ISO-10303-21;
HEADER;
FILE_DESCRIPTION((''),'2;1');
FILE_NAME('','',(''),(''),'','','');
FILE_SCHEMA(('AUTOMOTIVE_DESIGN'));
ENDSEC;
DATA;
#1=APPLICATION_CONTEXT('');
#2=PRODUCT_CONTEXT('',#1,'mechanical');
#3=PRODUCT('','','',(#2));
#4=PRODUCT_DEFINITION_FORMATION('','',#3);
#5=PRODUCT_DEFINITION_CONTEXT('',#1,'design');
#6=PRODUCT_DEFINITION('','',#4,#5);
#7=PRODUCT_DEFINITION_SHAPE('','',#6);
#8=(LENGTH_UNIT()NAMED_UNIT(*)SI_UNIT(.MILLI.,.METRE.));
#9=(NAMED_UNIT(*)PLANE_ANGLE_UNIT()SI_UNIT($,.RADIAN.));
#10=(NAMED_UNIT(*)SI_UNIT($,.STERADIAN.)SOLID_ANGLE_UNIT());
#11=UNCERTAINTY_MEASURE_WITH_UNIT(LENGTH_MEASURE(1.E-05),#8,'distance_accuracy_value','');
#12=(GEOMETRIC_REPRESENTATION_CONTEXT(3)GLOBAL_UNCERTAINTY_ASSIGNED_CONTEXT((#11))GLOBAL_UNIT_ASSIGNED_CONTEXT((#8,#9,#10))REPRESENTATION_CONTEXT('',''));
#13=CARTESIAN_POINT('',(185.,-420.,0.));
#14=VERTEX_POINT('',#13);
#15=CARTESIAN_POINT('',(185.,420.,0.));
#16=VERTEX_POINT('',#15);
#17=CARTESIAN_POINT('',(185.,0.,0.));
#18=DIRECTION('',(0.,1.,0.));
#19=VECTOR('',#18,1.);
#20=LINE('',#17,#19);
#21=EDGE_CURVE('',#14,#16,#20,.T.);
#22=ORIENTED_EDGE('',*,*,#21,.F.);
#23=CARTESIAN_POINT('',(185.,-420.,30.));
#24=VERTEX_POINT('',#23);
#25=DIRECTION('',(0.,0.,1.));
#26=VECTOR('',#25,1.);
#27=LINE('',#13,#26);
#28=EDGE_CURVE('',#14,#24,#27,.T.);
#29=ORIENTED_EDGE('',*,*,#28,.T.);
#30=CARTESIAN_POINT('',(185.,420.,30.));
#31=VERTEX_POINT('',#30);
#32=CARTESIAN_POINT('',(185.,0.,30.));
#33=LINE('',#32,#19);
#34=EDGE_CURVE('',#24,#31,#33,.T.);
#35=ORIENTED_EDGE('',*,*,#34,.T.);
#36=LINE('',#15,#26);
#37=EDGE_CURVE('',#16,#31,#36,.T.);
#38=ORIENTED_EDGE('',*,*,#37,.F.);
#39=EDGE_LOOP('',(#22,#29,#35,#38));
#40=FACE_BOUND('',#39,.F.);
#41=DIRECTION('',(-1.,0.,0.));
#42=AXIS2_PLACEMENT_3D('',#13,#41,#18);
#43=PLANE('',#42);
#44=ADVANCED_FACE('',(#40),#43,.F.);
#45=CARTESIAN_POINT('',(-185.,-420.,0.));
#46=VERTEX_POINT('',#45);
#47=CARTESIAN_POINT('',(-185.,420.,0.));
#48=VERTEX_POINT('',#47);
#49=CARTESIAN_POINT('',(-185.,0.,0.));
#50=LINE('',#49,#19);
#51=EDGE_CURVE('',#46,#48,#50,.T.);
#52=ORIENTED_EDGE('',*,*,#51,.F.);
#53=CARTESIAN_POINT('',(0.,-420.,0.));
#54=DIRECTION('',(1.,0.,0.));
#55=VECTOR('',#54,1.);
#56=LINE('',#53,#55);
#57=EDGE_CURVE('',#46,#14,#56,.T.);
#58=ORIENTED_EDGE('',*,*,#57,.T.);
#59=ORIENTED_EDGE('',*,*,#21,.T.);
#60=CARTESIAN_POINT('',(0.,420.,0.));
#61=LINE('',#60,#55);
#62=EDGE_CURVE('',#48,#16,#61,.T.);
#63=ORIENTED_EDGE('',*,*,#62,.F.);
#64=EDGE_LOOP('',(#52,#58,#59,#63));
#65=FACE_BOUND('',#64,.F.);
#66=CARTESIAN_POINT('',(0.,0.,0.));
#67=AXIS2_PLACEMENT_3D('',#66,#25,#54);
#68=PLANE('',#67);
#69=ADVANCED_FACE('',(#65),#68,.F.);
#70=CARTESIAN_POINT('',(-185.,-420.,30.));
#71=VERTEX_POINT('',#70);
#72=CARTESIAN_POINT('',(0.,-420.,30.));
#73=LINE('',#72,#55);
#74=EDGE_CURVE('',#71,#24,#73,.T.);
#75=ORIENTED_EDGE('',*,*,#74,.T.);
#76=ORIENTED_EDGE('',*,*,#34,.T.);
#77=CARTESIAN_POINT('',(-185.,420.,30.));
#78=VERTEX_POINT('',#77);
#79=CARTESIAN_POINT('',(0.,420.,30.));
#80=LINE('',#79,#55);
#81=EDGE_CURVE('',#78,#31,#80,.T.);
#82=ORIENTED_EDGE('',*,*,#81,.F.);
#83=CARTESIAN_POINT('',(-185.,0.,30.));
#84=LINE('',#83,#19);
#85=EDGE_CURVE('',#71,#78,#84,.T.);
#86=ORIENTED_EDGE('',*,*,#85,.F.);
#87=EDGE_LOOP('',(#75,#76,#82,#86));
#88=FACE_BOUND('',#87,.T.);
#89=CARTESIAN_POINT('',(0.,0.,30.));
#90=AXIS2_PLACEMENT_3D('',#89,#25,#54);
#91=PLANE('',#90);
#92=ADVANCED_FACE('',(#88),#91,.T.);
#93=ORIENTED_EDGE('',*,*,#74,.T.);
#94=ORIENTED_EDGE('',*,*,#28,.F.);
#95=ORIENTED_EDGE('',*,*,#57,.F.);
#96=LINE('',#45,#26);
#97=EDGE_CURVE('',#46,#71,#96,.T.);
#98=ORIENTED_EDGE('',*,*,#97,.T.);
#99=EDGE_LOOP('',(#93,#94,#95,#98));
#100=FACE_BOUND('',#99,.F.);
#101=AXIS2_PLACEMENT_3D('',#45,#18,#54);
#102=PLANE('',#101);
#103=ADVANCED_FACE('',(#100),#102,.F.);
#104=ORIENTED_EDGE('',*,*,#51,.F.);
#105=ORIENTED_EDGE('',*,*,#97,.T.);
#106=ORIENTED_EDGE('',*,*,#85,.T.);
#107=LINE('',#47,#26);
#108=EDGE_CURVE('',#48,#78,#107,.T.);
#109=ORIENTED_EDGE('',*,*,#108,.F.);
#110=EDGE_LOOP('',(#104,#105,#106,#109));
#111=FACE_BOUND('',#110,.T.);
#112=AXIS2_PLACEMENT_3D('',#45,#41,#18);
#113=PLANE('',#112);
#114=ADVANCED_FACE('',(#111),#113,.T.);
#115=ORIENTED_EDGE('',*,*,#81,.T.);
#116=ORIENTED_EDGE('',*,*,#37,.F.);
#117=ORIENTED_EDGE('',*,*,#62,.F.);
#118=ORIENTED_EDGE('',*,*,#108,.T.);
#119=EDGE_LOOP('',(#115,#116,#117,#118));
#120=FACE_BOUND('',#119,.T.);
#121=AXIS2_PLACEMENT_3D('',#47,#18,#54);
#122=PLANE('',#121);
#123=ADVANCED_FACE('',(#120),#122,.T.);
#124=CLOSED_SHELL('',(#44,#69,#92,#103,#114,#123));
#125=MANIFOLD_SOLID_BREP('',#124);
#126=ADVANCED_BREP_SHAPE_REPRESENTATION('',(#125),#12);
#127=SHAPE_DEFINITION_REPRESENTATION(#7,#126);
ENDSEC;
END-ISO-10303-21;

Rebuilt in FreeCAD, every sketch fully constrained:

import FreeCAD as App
import Part
import Sketcher
from FreeCAD import Vector


def add_polygon(sketch, points):
    """Adds a closed chain of lines whose ends are joined by coincident constraints."""
    first, n = sketch.GeometryCount, len(points)
    for a, b in zip(points, points[1:] + points[:1]):
        sketch.addGeometry(Part.LineSegment(App.Vector(*a, 0), App.Vector(*b, 0)), False)
    for i in range(n):
        sketch.addConstraint(Sketcher.Constraint("Coincident", first + i, 2, first + (i + 1) % n, 1))

doc = App.newDocument("Part")
params = doc.addObject("Spreadsheet::Sheet", "Params")
for row, (alias, value) in enumerate([
    ("sketch1_width", "370 mm"),
    ("sketch1_height", "840 mm"),
    ("pad1_length", "30 mm"),
], start=1):
    params.set(f"A{row}", alias)
    params.set(f"B{row}", "=" + value)
    params.setAlias(f"B{row}", alias)

body = doc.addObject("PartDesign::Body", "Body")

sketch1 = doc.addObject("Sketcher::SketchObject", "Sketch")
body.addObject(sketch1)
sketch1.AttachmentSupport = (doc.XY_Plane, [""])
sketch1.MapMode = "FlatFace"
add_polygon(sketch1, [(-185, 420), (-185, -420), (185, -420), (185, 420)])
sketch1.addConstraint(Sketcher.Constraint("Vertical", 0))
sketch1.addConstraint(Sketcher.Constraint("Horizontal", 1))
sketch1.addConstraint(Sketcher.Constraint("Vertical", 2))
sketch1.addConstraint(Sketcher.Constraint("Horizontal", 3))
sketch1.addConstraint(Sketcher.Constraint("Symmetric", 0, 2, 2, 2, -1, 1))
sketch1.addConstraint(Sketcher.Constraint("DistanceX", 1, 1, 1, 2, 370.0))
sketch1.addConstraint(Sketcher.Constraint("DistanceY", 0, 2, 0, 1, 840.0))
sketch1.setExpression("Constraints[9]", "Params.sketch1_width")
sketch1.setExpression("Constraints[10]", "Params.sketch1_height")
pad1 = doc.addObject("PartDesign::Pad", "Pad")
body.addObject(pad1)
pad1.Profile = sketch1
pad1.setExpression("Length", "Params.pad1_length")

doc.recompute()
